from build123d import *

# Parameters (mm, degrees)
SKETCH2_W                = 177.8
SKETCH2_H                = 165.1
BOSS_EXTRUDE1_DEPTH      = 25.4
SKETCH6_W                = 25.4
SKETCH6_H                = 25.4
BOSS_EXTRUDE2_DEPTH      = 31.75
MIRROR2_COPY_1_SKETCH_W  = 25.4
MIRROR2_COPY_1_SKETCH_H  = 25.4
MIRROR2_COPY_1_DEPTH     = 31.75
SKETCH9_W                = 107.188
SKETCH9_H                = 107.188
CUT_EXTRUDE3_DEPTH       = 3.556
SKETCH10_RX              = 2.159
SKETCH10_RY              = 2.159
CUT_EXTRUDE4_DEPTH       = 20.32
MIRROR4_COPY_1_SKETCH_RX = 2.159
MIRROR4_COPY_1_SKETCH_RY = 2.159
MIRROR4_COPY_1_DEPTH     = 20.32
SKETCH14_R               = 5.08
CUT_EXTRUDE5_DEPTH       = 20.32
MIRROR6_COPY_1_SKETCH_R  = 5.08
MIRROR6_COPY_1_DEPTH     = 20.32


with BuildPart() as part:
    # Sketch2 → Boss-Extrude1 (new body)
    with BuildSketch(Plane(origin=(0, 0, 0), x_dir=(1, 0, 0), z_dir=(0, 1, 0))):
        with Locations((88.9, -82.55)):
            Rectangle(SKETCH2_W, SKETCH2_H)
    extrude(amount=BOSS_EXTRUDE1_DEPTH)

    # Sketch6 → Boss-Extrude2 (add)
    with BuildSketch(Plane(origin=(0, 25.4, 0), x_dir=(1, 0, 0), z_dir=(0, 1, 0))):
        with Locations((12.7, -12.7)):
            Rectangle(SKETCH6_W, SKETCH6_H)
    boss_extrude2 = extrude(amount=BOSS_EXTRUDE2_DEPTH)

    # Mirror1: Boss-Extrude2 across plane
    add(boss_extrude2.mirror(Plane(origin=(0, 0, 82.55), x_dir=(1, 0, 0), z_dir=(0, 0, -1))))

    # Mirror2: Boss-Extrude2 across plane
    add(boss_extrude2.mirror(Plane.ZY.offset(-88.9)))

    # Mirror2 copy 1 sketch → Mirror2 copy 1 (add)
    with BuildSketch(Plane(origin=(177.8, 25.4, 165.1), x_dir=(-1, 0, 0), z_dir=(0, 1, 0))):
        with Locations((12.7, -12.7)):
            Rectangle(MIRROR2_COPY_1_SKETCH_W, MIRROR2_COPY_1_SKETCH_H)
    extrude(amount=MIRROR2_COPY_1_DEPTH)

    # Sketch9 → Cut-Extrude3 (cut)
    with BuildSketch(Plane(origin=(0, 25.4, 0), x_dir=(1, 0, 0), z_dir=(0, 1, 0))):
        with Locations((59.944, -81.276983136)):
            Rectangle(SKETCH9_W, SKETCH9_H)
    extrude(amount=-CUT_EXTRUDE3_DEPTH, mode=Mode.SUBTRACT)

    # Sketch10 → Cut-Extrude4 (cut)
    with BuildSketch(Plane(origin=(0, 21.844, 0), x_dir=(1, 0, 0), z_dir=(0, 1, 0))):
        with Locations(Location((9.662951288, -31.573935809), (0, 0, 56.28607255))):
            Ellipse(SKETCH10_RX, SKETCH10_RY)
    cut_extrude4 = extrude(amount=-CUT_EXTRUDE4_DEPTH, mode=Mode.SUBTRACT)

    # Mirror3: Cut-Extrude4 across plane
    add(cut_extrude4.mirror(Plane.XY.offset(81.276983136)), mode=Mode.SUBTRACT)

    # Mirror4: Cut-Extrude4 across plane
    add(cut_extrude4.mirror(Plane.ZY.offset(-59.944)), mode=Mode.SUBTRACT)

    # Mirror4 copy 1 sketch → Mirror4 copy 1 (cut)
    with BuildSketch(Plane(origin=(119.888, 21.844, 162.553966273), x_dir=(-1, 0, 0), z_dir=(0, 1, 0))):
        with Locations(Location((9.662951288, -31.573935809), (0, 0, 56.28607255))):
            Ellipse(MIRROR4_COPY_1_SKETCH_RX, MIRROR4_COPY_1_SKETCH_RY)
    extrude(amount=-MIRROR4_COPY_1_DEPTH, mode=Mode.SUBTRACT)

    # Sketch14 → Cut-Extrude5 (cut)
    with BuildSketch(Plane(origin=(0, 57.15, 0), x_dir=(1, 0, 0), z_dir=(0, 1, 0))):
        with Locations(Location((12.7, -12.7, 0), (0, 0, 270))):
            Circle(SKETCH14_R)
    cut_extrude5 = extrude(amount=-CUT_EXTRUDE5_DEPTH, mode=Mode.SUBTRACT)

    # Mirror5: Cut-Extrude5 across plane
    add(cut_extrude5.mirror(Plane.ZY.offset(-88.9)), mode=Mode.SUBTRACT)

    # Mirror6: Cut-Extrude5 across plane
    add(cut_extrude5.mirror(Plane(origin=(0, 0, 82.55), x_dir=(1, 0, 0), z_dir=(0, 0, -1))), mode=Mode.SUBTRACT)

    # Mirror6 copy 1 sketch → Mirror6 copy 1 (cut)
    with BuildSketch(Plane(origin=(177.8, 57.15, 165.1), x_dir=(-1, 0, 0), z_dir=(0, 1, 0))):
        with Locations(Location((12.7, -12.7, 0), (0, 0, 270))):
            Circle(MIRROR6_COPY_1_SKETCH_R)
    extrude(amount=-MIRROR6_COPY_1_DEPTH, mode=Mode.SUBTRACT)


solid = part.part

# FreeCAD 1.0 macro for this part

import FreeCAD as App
import Part
import Sketcher
from FreeCAD import Vector
Q = App.Units.Quantity

doc = App.newDocument("Part")
params = doc.addObject("Spreadsheet::Sheet", "Params")
for row, (alias, value) in enumerate([
    ("sketch1_width", "7 in"),
    ("sketch1_height", "6.5 in"),
    ("pad1_length", "1 in"),
    ("sketch2_width", "1 in"),
    ("pad2_length", "1.25 in"),
    ("sketch3_width", "1 in"),
    ("pad3_length", "1.25 in"),
    ("sketch4_width", "4.22 in"),
    ("pocket1_length", "0.14 in"),
    ("pocket2_length", "0.8 in"),
    ("pocket3_length", "0.8 in"),
    ("sketch7_diameter", "0.4 in"),
    ("pocket4_length", "0.8 in"),
    ("sketch8_diameter", "0.4 in"),
    ("pocket5_length", "0.8 in"),
], start=1):
    params.set(f"A{row}", alias)
    params.set(f"B{row}", "=" + value)
    params.setAlias(f"B{row}", alias)

body = doc.addObject("PartDesign::Body", "Body")

sketch1 = body.newObject("Sketcher::SketchObject", "Sketch")
sketch1.AttachmentSupport = (doc.getObject("XZ_Plane"), [""])
sketch1.MapMode = "FlatFace"
sketch1.addGeometry([
    Part.LineSegment(Vector(0, 0, 0), Vector(0, 165.1, 0)),
    Part.LineSegment(Vector(0, 165.1, 0), Vector(177.8, 165.1, 0)),
    Part.LineSegment(Vector(177.8, 165.1, 0), Vector(177.8, 0, 0)),
    Part.LineSegment(Vector(177.8, 0, 0), Vector(0, 0, 0)),
], False)
sketch1.addConstraint([
    Sketcher.Constraint("Coincident", 0, 2, 1, 1),
    Sketcher.Constraint("Coincident", 1, 2, 2, 1),
    Sketcher.Constraint("Coincident", 2, 2, 3, 1),
    Sketcher.Constraint("Coincident", 3, 2, 0, 1),
    Sketcher.Constraint("Vertical", 0),
    Sketcher.Constraint("Horizontal", 1),
    Sketcher.Constraint("Vertical", 2),
    Sketcher.Constraint("Horizontal", 3),
    Sketcher.Constraint("Coincident", 3, 2, -1, 1),
    Sketcher.Constraint("DistanceX", 1, 1, 1, 2, Q("7 in")),
    Sketcher.Constraint("DistanceY", 0, 1, 0, 2, Q("6.5 in")),
])
sketch1.setExpression("Constraints[9]", "Params.sketch1_width")
sketch1.setExpression("Constraints[10]", "Params.sketch1_height")
pad1 = body.newObject("PartDesign::Pad", "Pad")
pad1.Profile = sketch1
pad1.setExpression("Length", "Params.pad1_length")
pad1.Reversed = True

sketch2 = body.newObject("Sketcher::SketchObject", "Sketch001")
sketch2.AttachmentSupport = (doc.getObject("XZ_Plane"), [""])
sketch2.MapMode = "FlatFace"
sketch2.AttachmentOffset = App.Placement(Vector(0, 0, -1 * 25.4), App.Rotation())
sketch2.addGeometry([
    Part.LineSegment(Vector(0, 0, 0), Vector(0, 25.4, 0)),
    Part.LineSegment(Vector(0, 25.4, 0), Vector(25.4, 25.4, 0)),
    Part.LineSegment(Vector(25.4, 25.4, 0), Vector(25.4, 0, 0)),
    Part.LineSegment(Vector(25.4, 0, 0), Vector(0, 0, 0)),
], False)
sketch2.addConstraint([
    Sketcher.Constraint("Coincident", 0, 2, 1, 1),
    Sketcher.Constraint("Coincident", 1, 2, 2, 1),
    Sketcher.Constraint("Coincident", 2, 2, 3, 1),
    Sketcher.Constraint("Coincident", 3, 2, 0, 1),
    Sketcher.Constraint("Vertical", 0),
    Sketcher.Constraint("Horizontal", 1),
    Sketcher.Constraint("Vertical", 2),
    Sketcher.Constraint("Horizontal", 3),
    Sketcher.Constraint("Coincident", 3, 2, -1, 1),
    Sketcher.Constraint("Equal", 3, 0),
    Sketcher.Constraint("DistanceX", 1, 1, 1, 2, Q("1 in")),
])
sketch2.setExpression("Constraints[10]", "Params.sketch2_width")
pad2 = body.newObject("PartDesign::Pad", "Pad001")
pad2.Profile = sketch2
pad2.setExpression("Length", "Params.pad2_length")
pad2.Reversed = True
doc.recompute()

datumplane = body.newObject("PartDesign::Plane", "DatumPlane")
datumplane.AttachmentSupport = (doc.getObject("XY_Plane"), [""])
datumplane.MapMode = "FlatFace"
datumplane.AttachmentOffset = App.Placement(Vector(0, 0, 3.25 * 25.4), App.Rotation())
mirrored = body.newObject("PartDesign::Mirrored", "Mirrored")
mirrored.Originals = [pad2]
mirrored.MirrorPlane = (datumplane, [""])
body.Tip = mirrored
doc.recompute()

datumplane2 = body.newObject("PartDesign::Plane", "DatumPlane001")
datumplane2.AttachmentSupport = (doc.getObject("YZ_Plane"), [""])
datumplane2.MapMode = "FlatFace"
datumplane2.AttachmentOffset = App.Placement(Vector(0, 0, 3.5 * 25.4), App.Rotation())
mirrored2 = body.newObject("PartDesign::Mirrored", "Mirrored001")
mirrored2.Originals = [pad2]
mirrored2.MirrorPlane = (datumplane2, [""])
body.Tip = mirrored2

sketch3 = body.newObject("Sketcher::SketchObject", "Sketch002")
sketch3.AttachmentSupport = (doc.getObject("XZ_Plane"), [""])
sketch3.MapMode = "FlatFace"
sketch3.AttachmentOffset = App.Placement(Vector(0, 0, -1 * 25.4), App.Rotation())
sketch3.addGeometry([
    Part.LineSegment(Vector(177.8, 165.1, 0), Vector(177.8, 139.7, 0)),
    Part.LineSegment(Vector(177.8, 139.7, 0), Vector(152.4, 139.7, 0)),
    Part.LineSegment(Vector(152.4, 139.7, 0), Vector(152.4, 165.1, 0)),
    Part.LineSegment(Vector(152.4, 165.1, 0), Vector(177.8, 165.1, 0)),
], False)
sketch3.addConstraint([
    Sketcher.Constraint("Coincident", 0, 2, 1, 1),
    Sketcher.Constraint("Coincident", 1, 2, 2, 1),
    Sketcher.Constraint("Coincident", 2, 2, 3, 1),
    Sketcher.Constraint("Coincident", 3, 2, 0, 1),
    Sketcher.Constraint("Vertical", 0),
    Sketcher.Constraint("Horizontal", 1),
    Sketcher.Constraint("Vertical", 2),
    Sketcher.Constraint("Horizontal", 3),
    Sketcher.Constraint("Equal", 3, 0),
    Sketcher.Constraint("DistanceX", 1, 2, 1, 1, Q("1 in")),
    Sketcher.Constraint("DistanceX", -1, 1, 0, 2, Q("7 in")),
    Sketcher.Constraint("DistanceY", -1, 1, 0, 2, Q("5.5 in")),
])
sketch3.setExpression("Constraints[9]", "Params.sketch3_width")
pad3 = body.newObject("PartDesign::Pad", "Pad002")
pad3.Profile = sketch3
pad3.setExpression("Length", "Params.pad3_length")
pad3.Reversed = True

sketch4 = body.newObject("Sketcher::SketchObject", "Sketch003")
sketch4.AttachmentSupport = (doc.getObject("XZ_Plane"), [""])
sketch4.MapMode = "FlatFace"
sketch4.AttachmentOffset = App.Placement(Vector(0, 0, -1 * 25.4), App.Rotation())
sketch4.addGeometry([
    Part.LineSegment(Vector(6.35, 27.682983, 0), Vector(6.35, 134.870983, 0)),
    Part.LineSegment(Vector(6.35, 134.870983, 0), Vector(113.538, 134.870983, 0)),
    Part.LineSegment(Vector(113.538, 134.870983, 0), Vector(113.538, 27.682983, 0)),
    Part.LineSegment(Vector(113.538, 27.682983, 0), Vector(6.35, 27.682983, 0)),
], False)
sketch4.addConstraint([
    Sketcher.Constraint("Coincident", 0, 2, 1, 1),
    Sketcher.Constraint("Coincident", 1, 2, 2, 1),
    Sketcher.Constraint("Coincident", 2, 2, 3, 1),
    Sketcher.Constraint("Coincident", 3, 2, 0, 1),
    Sketcher.Constraint("Vertical", 0),
    Sketcher.Constraint("Horizontal", 1),
    Sketcher.Constraint("Vertical", 2),
    Sketcher.Constraint("Horizontal", 3),
    Sketcher.Constraint("Equal", 3, 0),
    Sketcher.Constraint("DistanceX", 1, 1, 1, 2, Q("4.22 in")),
    Sketcher.Constraint("DistanceX", -1, 1, 0, 2, Q("0.25 in")),
    Sketcher.Constraint("DistanceY", -1, 1, 0, 2, Q("134.870983 mm")),
])
sketch4.setExpression("Constraints[9]", "Params.sketch4_width")
pocket1 = body.newObject("PartDesign::Pocket", "Pocket")
pocket1.Profile = sketch4
pocket1.setExpression("Length", "Params.pocket1_length")
pocket1.Reversed = True

sketch5 = body.newObject("Sketcher::SketchObject", "Sketch004")
sketch5.AttachmentSupport = (doc.getObject("XZ_Plane"), [""])
sketch5.MapMode = "FlatFace"
sketch5.AttachmentOffset = App.Placement(Vector(0, 0, -0.86 * 25.4), App.Rotation())
sketch5.addGeometry(Part.Ellipse(Vector(10.861297, 29.778038, 0), Vector(11.458849, 32.772282, 0), Vector(9.662951, 31.573936, 0)), False)
sketch5.addConstraint(Sketcher.Constraint("Block", 0))
pocket2 = body.newObject("PartDesign::Pocket", "Pocket001")
pocket2.Profile = sketch5
pocket2.setExpression("Length", "Params.pocket2_length")
pocket2.Reversed = True
doc.recompute()

datumplane3 = body.newObject("PartDesign::Plane", "DatumPlane002")
datumplane3.AttachmentSupport = (doc.getObject("XY_Plane"), [""])
datumplane3.MapMode = "FlatFace"
datumplane3.AttachmentOffset = App.Placement(Vector(0, 0, 81.276983), App.Rotation())
mirrored3 = body.newObject("PartDesign::Mirrored", "Mirrored002")
mirrored3.Originals = [pocket2]
mirrored3.MirrorPlane = (datumplane3, [""])
body.Tip = mirrored3
doc.recompute()

datumplane4 = body.newObject("PartDesign::Plane", "DatumPlane003")
datumplane4.AttachmentSupport = (doc.getObject("YZ_Plane"), [""])
datumplane4.MapMode = "FlatFace"
datumplane4.AttachmentOffset = App.Placement(Vector(0, 0, 2.36 * 25.4), App.Rotation())
mirrored4 = body.newObject("PartDesign::Mirrored", "Mirrored003")
mirrored4.Originals = [pocket2]
mirrored4.MirrorPlane = (datumplane4, [""])
body.Tip = mirrored4

sketch6 = body.newObject("Sketcher::SketchObject", "Sketch005")
sketch6.AttachmentSupport = (doc.getObject("XZ_Plane"), [""])
sketch6.MapMode = "FlatFace"
sketch6.AttachmentOffset = App.Placement(Vector(0, 0, -0.86 * 25.4), App.Rotation())
sketch6.addGeometry(Part.Ellipse(Vector(109.026703, 132.775928, 0), Vector(108.429151, 129.781685, 0), Vector(110.225049, 130.98003, 0)), False)
sketch6.addConstraint(Sketcher.Constraint("Block", 0))
pocket3 = body.newObject("PartDesign::Pocket", "Pocket002")
pocket3.Profile = sketch6
pocket3.setExpression("Length", "Params.pocket3_length")
pocket3.Reversed = True

sketch7 = body.newObject("Sketcher::SketchObject", "Sketch006")
sketch7.AttachmentSupport = (doc.getObject("XZ_Plane"), [""])
sketch7.MapMode = "FlatFace"
sketch7.AttachmentOffset = App.Placement(Vector(0, 0, -2.25 * 25.4), App.Rotation())
sketch7.addGeometry(Part.Circle(Vector(12.7, 12.7, 0), Vector(0, 0, 1), 5.08), False)
sketch7.addConstraint([
    Sketcher.Constraint("Diameter", 0, Q("0.4 in")),
    Sketcher.Constraint("DistanceX", -1, 1, 0, 3, Q("0.5 in")),
    Sketcher.Constraint("DistanceY", -1, 1, 0, 3, Q("0.5 in")),
])
sketch7.setExpression("Constraints[0]", "Params.sketch7_diameter")
pocket4 = body.newObject("PartDesign::Pocket", "Pocket003")
pocket4.Profile = sketch7
pocket4.setExpression("Length", "Params.pocket4_length")
pocket4.Reversed = True
doc.recompute()

datumplane5 = body.newObject("PartDesign::Plane", "DatumPlane004")
datumplane5.AttachmentSupport = (doc.getObject("YZ_Plane"), [""])
datumplane5.MapMode = "FlatFace"
datumplane5.AttachmentOffset = App.Placement(Vector(0, 0, 3.5 * 25.4), App.Rotation())
mirrored5 = body.newObject("PartDesign::Mirrored", "Mirrored004")
mirrored5.Originals = [pocket4]
mirrored5.MirrorPlane = (datumplane5, [""])
body.Tip = mirrored5
doc.recompute()

datumplane6 = body.newObject("PartDesign::Plane", "DatumPlane005")
datumplane6.AttachmentSupport = (doc.getObject("XY_Plane"), [""])
datumplane6.MapMode = "FlatFace"
datumplane6.AttachmentOffset = App.Placement(Vector(0, 0, 3.25 * 25.4), App.Rotation())
mirrored6 = body.newObject("PartDesign::Mirrored", "Mirrored005")
mirrored6.Originals = [pocket4]
mirrored6.MirrorPlane = (datumplane6, [""])
body.Tip = mirrored6

sketch8 = body.newObject("Sketcher::SketchObject", "Sketch007")
sketch8.AttachmentSupport = (doc.getObject("XZ_Plane"), [""])
sketch8.MapMode = "FlatFace"
sketch8.AttachmentOffset = App.Placement(Vector(0, 0, -2.25 * 25.4), App.Rotation())
sketch8.addGeometry(Part.Circle(Vector(165.1, 152.4, 0), Vector(0, 0, 1), 5.08), False)
sketch8.addConstraint([
    Sketcher.Constraint("Diameter", 0, Q("0.4 in")),
    Sketcher.Constraint("DistanceY", -1, 1, 0, 3, Q("6 in")),
    Sketcher.Constraint("DistanceX", -1, 1, 0, 3, Q("6.5 in")),
])
sketch8.setExpression("Constraints[0]", "Params.sketch8_diameter")
pocket5 = body.newObject("PartDesign::Pocket", "Pocket004")
pocket5.Profile = sketch8
pocket5.setExpression("Length", "Params.pocket5_length")
pocket5.Reversed = True

doc.recompute()
